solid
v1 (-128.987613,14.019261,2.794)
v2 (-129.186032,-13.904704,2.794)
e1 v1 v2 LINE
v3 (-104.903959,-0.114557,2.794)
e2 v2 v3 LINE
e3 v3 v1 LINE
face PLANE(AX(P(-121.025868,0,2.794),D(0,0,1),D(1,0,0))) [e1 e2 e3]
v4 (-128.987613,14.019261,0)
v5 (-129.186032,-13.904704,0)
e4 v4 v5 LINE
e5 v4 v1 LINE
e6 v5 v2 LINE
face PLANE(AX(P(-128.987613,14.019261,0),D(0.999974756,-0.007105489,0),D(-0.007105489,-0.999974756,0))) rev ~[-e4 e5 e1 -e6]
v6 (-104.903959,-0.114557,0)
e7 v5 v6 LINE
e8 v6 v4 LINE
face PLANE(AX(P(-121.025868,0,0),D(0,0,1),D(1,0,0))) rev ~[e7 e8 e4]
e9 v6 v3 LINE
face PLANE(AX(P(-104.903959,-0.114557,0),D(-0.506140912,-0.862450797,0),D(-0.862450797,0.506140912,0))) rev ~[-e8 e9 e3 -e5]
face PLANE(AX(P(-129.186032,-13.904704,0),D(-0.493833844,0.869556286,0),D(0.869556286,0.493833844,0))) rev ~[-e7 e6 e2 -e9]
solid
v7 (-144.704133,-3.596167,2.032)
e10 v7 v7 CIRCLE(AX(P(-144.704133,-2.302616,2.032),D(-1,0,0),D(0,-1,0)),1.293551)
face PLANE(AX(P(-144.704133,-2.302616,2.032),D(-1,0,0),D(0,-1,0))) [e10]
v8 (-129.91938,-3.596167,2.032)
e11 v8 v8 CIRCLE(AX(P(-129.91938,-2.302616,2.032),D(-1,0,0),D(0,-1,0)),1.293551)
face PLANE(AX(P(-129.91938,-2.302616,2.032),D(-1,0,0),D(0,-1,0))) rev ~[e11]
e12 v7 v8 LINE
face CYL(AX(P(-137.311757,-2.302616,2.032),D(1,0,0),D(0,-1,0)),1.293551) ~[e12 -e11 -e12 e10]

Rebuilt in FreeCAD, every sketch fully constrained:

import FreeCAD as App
import Part
import Sketcher

V = App.Vector
Q = App.Units.Quantity

doc = App.newDocument("Part")
body = doc.addObject("PartDesign::Body", "Body")

# Sketch on XY plane
sketch1 = body.newObject("Sketcher::SketchObject", "Sketch")
sketch1.AttachmentSupport = (doc.getObject("XY_Plane"), [""])
sketch1.MapMode = "FlatFace"
sketch1.addGeometry([
    Part.LineSegment(V(-129, 14, 0), V(-129, -14, 0)),
    Part.LineSegment(V(-129, -14, 0), V(-105, 0, 0)),
    Part.LineSegment(V(-105, 0, 0), V(-129, 14, 0)),
], False)
sketch1.addConstraint([
    Sketcher.Constraint("Coincident", 0, 2, 1, 1),
    Sketcher.Constraint("Coincident", 1, 2, 2, 1),
    Sketcher.Constraint("Coincident", 2, 2, 0, 1),
    Sketcher.Constraint("Equal", 0, 1),
    Sketcher.Constraint("Equal", 1, 2),
    Sketcher.Constraint("Distance", 0, Q("27.924671 mm")),
    Sketcher.Constraint("DistanceX", 0, 2, -1, 1, Q("129.186032 mm")),
    Sketcher.Constraint("DistanceX", 1, 2, -1, 1, Q("104.903959 mm")),
    Sketcher.Constraint("DistanceY", -1, 1, 2, 2, Q("14.019261 mm")),
])
pad1 = body.newObject("PartDesign::Pad", "Pad")
pad1.Profile = sketch1
pad1.Length = Q("0.11 in")
body2 = doc.addObject("PartDesign::Body", "Body001")

# Sketch on XY plane
sketch2 = body2.newObject("Sketcher::SketchObject", "Sketch001")
sketch2.AttachmentSupport = (doc.getObject("XY_Plane001"), [""])
sketch2.MapMode = "FlatFace"
sketch2.AttachmentOffset = App.Placement(V(0, 0, 0.08 * 25.4), App.Rotation())
sketch2.addGeometry([
    Part.LineSegment(V(-144.7, -2.3, 0), V(-144.7, -3.6, 0)),
    Part.LineSegment(V(-144.7, -3.6, 0), V(-129.9, -3.6, 0)),
    Part.LineSegment(V(-129.9, -3.6, 0), V(-129.9, -2.3, 0)),
    Part.LineSegment(V(-129.9, -2.3, 0), V(-144.7, -2.3, 0)),
], False)
sketch2.addGeometry(Part.LineSegment(V(-129.9, -2.3, 0), V(-144.7, -2.3, 0)), True)  # axis
sketch2.addConstraint([
    Sketcher.Constraint("Coincident", 0, 2, 1, 1),
    Sketcher.Constraint("Coincident", 1, 2, 2, 1),
    Sketcher.Constraint("Coincident", 2, 2, 3, 1),
    Sketcher.Constraint("Coincident", 3, 2, 0, 1),
    Sketcher.Constraint("Vertical", 0),
    Sketcher.Constraint("Horizontal", 1),
    Sketcher.Constraint("Vertical", 2),
    Sketcher.Constraint("Horizontal", 3),
    Sketcher.Constraint("Horizontal", 4),
    Sketcher.Constraint("Coincident", 4, 1, 2, 2),
    Sketcher.Constraint("Vertical", 0, 2, 4, 2),
    Sketcher.Constraint("DistanceY", 0, 2, 0, 1, Q("1.293551 mm")),
    Sketcher.Constraint("DistanceX", 1, 1, 1, 2, Q("14.784753 mm")),
    Sketcher.Constraint("DistanceX", 1, 2, -1, 1, Q("129.91938 mm")),
    Sketcher.Constraint("DistanceY", 0, 2, -1, 1, Q("3.596167 mm")),
])
revolution = body2.newObject("PartDesign::Revolution", "Revolution")
revolution.Profile = sketch2
revolution.ReferenceAxis = (sketch2, ["Axis0"])
revolution.Angle = 360

doc.recompute()
